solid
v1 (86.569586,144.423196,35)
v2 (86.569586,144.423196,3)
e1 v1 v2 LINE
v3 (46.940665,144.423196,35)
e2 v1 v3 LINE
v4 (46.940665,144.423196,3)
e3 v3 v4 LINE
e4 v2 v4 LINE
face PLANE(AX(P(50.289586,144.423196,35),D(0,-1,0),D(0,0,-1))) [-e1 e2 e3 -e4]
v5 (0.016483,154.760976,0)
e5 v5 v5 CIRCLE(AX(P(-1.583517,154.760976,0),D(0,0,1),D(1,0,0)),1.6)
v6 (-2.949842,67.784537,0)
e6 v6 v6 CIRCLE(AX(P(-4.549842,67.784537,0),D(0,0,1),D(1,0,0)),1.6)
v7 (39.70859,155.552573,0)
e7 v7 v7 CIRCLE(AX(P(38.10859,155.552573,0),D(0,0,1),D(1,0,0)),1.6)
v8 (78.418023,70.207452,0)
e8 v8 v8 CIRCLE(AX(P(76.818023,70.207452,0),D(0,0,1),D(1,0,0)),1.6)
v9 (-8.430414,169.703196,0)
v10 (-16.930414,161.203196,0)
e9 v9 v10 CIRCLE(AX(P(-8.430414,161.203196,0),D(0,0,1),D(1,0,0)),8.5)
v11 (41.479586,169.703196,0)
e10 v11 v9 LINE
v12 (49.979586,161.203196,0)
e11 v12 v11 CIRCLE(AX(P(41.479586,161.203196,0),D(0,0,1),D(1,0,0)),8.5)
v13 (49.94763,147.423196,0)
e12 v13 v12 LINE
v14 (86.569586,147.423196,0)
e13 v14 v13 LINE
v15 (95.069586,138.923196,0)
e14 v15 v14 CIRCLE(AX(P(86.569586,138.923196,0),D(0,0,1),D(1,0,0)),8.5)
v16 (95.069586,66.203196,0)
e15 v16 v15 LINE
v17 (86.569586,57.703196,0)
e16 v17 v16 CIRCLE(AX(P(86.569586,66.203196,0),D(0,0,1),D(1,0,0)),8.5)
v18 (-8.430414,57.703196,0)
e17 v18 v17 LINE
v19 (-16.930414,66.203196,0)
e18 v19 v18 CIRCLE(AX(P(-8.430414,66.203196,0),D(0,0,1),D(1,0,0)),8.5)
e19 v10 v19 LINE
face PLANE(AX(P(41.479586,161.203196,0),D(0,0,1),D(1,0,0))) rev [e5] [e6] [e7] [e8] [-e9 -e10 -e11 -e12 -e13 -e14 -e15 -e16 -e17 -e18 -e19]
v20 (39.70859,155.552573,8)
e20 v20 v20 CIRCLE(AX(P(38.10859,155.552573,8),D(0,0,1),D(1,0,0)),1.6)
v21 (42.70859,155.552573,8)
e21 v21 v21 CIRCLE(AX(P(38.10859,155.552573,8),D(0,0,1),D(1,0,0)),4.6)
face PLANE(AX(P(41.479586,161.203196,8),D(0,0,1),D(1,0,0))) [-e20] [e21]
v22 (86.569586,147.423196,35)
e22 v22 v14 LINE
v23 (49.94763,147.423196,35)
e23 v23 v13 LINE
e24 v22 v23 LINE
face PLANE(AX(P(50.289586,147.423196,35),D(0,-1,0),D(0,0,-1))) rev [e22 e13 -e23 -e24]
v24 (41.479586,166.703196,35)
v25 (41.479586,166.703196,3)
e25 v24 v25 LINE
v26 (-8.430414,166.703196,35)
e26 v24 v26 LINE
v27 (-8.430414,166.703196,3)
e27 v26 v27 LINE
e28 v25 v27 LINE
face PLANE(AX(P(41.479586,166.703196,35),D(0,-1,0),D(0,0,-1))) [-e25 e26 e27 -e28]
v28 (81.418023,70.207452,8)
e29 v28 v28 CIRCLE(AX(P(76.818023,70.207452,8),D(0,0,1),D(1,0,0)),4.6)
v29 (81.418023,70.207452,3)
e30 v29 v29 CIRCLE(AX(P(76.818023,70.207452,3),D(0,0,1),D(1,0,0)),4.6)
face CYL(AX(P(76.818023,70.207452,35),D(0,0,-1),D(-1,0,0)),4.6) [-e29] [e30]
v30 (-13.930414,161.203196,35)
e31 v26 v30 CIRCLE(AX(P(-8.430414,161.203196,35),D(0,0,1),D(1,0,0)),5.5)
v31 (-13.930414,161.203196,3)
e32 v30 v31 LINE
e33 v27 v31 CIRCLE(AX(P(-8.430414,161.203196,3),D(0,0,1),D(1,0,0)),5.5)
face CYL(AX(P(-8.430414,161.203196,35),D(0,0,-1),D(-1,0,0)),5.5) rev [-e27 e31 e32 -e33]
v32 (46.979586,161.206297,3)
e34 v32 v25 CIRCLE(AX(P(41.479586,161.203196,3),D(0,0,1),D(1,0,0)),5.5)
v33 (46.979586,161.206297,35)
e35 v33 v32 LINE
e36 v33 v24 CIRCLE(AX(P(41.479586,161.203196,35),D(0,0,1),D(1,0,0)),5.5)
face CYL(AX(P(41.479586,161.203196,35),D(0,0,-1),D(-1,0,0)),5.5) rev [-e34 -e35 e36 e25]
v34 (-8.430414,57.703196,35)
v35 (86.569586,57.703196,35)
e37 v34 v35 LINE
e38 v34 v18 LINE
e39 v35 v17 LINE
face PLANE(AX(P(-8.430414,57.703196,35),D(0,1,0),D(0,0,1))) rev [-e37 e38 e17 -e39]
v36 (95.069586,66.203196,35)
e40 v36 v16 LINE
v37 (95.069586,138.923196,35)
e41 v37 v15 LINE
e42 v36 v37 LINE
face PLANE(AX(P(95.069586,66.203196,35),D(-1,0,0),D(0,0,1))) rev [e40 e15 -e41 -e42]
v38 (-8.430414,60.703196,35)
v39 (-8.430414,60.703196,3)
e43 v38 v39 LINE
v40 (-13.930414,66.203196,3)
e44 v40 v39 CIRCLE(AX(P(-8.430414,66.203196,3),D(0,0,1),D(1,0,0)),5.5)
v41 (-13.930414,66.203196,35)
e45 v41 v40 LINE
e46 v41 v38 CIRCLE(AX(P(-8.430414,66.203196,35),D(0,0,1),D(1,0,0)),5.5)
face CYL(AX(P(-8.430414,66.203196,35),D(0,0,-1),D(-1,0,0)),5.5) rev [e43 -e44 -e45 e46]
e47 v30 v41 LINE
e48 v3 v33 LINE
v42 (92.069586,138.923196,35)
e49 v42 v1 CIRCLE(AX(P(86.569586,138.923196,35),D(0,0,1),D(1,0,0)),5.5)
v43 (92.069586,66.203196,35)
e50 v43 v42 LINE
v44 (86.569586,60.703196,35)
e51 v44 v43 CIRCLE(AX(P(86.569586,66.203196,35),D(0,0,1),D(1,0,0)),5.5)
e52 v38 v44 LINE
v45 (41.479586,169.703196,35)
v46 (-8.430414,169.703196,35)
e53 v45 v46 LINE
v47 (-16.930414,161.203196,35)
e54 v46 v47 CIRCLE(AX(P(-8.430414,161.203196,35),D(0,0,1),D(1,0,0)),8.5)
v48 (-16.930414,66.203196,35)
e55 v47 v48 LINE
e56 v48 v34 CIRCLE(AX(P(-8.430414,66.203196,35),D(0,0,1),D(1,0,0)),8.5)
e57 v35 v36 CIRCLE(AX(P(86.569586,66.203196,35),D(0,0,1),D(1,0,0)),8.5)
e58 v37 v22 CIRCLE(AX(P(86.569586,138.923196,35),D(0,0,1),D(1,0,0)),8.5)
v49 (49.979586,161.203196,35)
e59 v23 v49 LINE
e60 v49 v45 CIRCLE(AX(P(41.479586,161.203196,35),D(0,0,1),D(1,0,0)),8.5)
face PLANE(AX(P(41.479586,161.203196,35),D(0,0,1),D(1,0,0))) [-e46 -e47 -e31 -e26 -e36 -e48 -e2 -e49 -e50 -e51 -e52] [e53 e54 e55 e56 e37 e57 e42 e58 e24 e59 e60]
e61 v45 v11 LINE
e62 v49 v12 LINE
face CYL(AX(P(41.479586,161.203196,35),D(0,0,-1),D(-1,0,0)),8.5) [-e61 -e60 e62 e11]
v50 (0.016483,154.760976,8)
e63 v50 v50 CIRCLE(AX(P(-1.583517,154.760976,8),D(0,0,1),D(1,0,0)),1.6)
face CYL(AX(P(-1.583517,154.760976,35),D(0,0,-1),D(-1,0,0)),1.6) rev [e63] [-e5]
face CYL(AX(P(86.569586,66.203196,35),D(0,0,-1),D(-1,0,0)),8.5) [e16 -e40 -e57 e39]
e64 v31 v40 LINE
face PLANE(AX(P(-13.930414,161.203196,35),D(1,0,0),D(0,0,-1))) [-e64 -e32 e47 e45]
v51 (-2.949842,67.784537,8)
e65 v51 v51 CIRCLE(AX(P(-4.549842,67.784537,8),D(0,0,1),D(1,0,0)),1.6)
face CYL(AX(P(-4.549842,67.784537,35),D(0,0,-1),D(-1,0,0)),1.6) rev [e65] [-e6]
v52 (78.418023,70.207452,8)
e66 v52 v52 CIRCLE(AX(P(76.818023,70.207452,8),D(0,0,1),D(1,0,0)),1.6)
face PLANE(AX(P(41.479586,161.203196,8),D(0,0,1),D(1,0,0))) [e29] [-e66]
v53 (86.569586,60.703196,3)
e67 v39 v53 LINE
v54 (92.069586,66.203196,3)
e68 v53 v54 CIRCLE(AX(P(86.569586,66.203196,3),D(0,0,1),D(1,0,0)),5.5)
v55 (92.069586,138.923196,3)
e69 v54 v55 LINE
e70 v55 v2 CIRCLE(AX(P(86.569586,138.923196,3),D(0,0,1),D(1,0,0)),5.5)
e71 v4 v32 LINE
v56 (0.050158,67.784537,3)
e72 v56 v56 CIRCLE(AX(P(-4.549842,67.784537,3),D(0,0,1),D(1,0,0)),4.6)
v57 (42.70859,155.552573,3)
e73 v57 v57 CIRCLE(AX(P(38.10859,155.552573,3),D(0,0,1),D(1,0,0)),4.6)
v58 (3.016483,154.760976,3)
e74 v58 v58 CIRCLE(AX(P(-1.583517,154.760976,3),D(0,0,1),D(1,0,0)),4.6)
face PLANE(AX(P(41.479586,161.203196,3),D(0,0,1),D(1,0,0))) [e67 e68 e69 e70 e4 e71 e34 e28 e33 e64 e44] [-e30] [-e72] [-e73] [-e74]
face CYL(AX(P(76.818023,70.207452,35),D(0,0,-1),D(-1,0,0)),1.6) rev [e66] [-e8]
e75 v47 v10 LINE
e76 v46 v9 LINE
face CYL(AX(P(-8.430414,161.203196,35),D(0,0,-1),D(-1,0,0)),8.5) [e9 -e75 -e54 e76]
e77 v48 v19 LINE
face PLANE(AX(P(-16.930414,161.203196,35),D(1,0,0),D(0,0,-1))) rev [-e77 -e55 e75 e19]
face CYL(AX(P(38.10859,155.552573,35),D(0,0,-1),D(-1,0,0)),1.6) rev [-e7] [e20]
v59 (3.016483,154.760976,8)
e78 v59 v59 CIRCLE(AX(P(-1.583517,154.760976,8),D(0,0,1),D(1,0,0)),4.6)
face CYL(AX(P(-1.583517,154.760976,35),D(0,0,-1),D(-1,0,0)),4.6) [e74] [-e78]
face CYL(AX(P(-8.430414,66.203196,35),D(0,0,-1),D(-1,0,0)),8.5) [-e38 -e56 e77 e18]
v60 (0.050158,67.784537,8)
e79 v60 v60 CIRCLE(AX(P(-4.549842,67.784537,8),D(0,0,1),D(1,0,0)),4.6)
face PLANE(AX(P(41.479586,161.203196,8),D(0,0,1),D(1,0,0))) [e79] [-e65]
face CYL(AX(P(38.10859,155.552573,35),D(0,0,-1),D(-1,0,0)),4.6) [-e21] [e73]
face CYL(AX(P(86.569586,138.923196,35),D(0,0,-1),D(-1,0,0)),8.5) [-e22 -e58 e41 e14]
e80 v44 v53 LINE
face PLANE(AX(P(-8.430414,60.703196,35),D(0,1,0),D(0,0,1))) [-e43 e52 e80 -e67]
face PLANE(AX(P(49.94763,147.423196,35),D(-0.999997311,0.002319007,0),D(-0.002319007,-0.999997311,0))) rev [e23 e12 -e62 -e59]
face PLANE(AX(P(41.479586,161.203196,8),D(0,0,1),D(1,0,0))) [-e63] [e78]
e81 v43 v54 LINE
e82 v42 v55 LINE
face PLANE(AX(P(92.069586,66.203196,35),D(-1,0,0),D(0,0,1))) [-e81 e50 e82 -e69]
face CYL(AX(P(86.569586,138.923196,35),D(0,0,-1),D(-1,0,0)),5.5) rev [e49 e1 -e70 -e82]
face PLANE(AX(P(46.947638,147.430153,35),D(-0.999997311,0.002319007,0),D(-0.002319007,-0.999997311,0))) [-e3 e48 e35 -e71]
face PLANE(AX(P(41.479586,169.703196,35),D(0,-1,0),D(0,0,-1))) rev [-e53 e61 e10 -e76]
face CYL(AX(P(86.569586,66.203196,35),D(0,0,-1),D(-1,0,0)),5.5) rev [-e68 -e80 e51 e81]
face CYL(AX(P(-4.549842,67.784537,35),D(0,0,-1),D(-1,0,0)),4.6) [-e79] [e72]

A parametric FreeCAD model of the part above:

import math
import FreeCAD as App
import Part
import Sketcher
from FreeCAD import Vector


def faces_at(feature, points):
    """Names of the faces that lie closest to the given points."""
    faces = feature.Shape.Faces
    near = lambda p: min(range(len(faces)), key=lambda i: faces[i].distToShape(Part.Vertex(*p))[0])
    return sorted({f"Face{near(p) + 1}" for p in points})

doc = App.newDocument("Part")
params = doc.addObject("Spreadsheet::Sheet", "Params")
for row, (alias, value) in enumerate([
    ("sketch1_diameter", "3.2 mm"),
    ("sketch1_radius", "8.5 mm"),
    ("sketch1_width", "95 mm"),
    ("sketch1_width2", "49.91 mm"),
    ("sketch1_height", "72.72 mm"),
    ("pad1_length", "35 mm"),
    ("thickness_wall", "3 mm"),
    ("sketch2_radius", "3.5 mm"),
    ("sketch2_width", "95 mm"),
    ("sketch2_width2", "49.91 mm"),
    ("sketch2_height", "72.72 mm"),
    ("pocket1_length", "27 mm"),
], start=1):
    params.set(f"A{row}", alias)
    params.set(f"B{row}", "=" + value)
    params.setAlias(f"B{row}", alias)

body = doc.addObject("PartDesign::Body", "Body")

# Sketch on XY plane
sketch1 = doc.addObject("Sketcher::SketchObject", "Sketch")
body.addObject(sketch1)
sketch1.AttachmentSupport = (doc.XY_Plane, [""])
sketch1.MapMode = "FlatFace"
sketch1.addGeometry([
    Part.LineSegment(Vector(41.5, 169.7, 0), Vector(-8.4, 169.7, 0)),  # 0
    Part.ArcOfCircle(Part.Circle(Vector(-8.4, 161.2, 0), Vector(0, 0, 1), 8.5), math.radians(90), math.radians(180)),  # 1
    Part.LineSegment(Vector(-16.9, 161.2, 0), Vector(-16.9, 66.2, 0)),  # 2
    Part.ArcOfCircle(Part.Circle(Vector(-8.4, 66.2, 0), Vector(0, 0, 1), 8.5), math.radians(180), math.radians(270)),  # 3
    Part.LineSegment(Vector(-8.4, 57.7, 0), Vector(86.6, 57.7, 0)),  # 4
    Part.ArcOfCircle(Part.Circle(Vector(86.6, 66.2, 0), Vector(0, 0, 1), 8.5), math.radians(-90), math.radians(0)),  # 5
    Part.LineSegment(Vector(95.1, 66.2, 0), Vector(95.1, 138.9, 0)),  # 6
    Part.ArcOfCircle(Part.Circle(Vector(86.6, 138.9, 0), Vector(0, 0, 1), 8.5), math.radians(0), math.radians(90)),  # 7
    Part.LineSegment(Vector(86.6, 147.4, 0), Vector(49.9, 147.4, 0)),  # 8
    Part.LineSegment(Vector(49.9, 147.4, 0), Vector(50, 161.2, 0)),  # 9
    Part.ArcOfCircle(Part.Circle(Vector(41.5, 161.2, 0), Vector(0, 0, 1), 8.5), math.radians(0), math.radians(90)),  # 10
    Part.Circle(Vector(-4.5, 67.8, 0), Vector(0, 0, 1), 1.6),  # 11
    Part.Circle(Vector(76.8, 70.2, 0), Vector(0, 0, 1), 1.6),  # 12
    Part.Circle(Vector(-1.6, 154.8, 0), Vector(0, 0, 1), 1.6),  # 13
    Part.Circle(Vector(38.1, 155.6, 0), Vector(0, 0, 1), 1.6),  # 14
], False)
sketch1.addConstraint([
    Sketcher.Constraint("Tangent", 0, 2, 1, 1),
    Sketcher.Constraint("Tangent", 1, 2, 2, 1),
    Sketcher.Constraint("Tangent", 2, 2, 3, 1),
    Sketcher.Constraint("Tangent", 3, 2, 4, 1),
    Sketcher.Constraint("Tangent", 4, 2, 5, 1),
    Sketcher.Constraint("Tangent", 5, 2, 6, 1),
    Sketcher.Constraint("Tangent", 6, 2, 7, 1),
    Sketcher.Constraint("Tangent", 7, 2, 8, 1),
    Sketcher.Constraint("Coincident", 8, 2, 9, 1),
    Sketcher.Constraint("Coincident", 9, 2, 10, 1),
    Sketcher.Constraint("Tangent", 10, 2, 0, 1),
    Sketcher.Constraint("Horizontal", 0),
    Sketcher.Constraint("Vertical", 2),
    Sketcher.Constraint("Horizontal", 4),
    Sketcher.Constraint("Vertical", 6),
    Sketcher.Constraint("Horizontal", 8),
    Sketcher.Constraint("Equal", 1, 3),
    Sketcher.Constraint("Equal", 3, 5),
    Sketcher.Constraint("Equal", 5, 7),
    Sketcher.Constraint("Equal", 7, 10),
    Sketcher.Constraint("Equal", 11, 12),
    Sketcher.Constraint("Equal", 12, 13),
    Sketcher.Constraint("Equal", 13, 14),
    Sketcher.Constraint("Horizontal", 1, 2, 9, 2),
    Sketcher.Constraint("Equal", 4, 2),
    Sketcher.Constraint("Diameter", 11, 3.2),
    Sketcher.Constraint("Radius", 1, 8.5),
    Sketcher.Constraint("DistanceX", 4, 1, 4, 2, 95.0),
    Sketcher.Constraint("DistanceX", 0, 2, 0, 1, 49.91),
    Sketcher.Constraint("DistanceY", 6, 1, 6, 2, 72.72),
    Sketcher.Constraint("DistanceX", 8, 2, 8, 1, 36.621956),
    Sketcher.Constraint("DistanceY", -1, 1, 12, 3, 70.207452),
    Sketcher.Constraint("DistanceX", -1, 1, 14, 3, 38.10859),
    Sketcher.Constraint("DistanceX", -1, 1, 8, 2, 49.94763),
    Sketcher.Constraint("DistanceX", 3, 3, 11, 3, 3.880572),
    Sketcher.Constraint("DistanceY", 3, 3, 11, 3, 1.581341),
    Sketcher.Constraint("DistanceY", 13, 3, 1, 3, 6.44222),
    Sketcher.Constraint("DistanceY", 12, 3, 14, 3, 85.345122),
    Sketcher.Constraint("DistanceY", -1, 1, 1, 3, 161.203196),
    Sketcher.Constraint("DistanceX", -1, 1, 12, 3, 76.818023),
    Sketcher.Constraint("DistanceX", 13, 3, -1, 1, 1.583517),
])
sketch1.setExpression("Constraints[25]", "Params.sketch1_diameter")
sketch1.setExpression("Constraints[26]", "Params.sketch1_radius")
sketch1.setExpression("Constraints[27]", "Params.sketch1_width")
sketch1.setExpression("Constraints[28]", "Params.sketch1_width2")
sketch1.setExpression("Constraints[29]", "Params.sketch1_height")
pad1 = doc.addObject("PartDesign::Pad", "Pad")
body.addObject(pad1)
pad1.Profile = sketch1
pad1.setExpression("Length", "Params.pad1_length")
doc.recompute()

thickness = doc.addObject("PartDesign::Thickness", "Thickness")
body.addObject(thickness)
thickness.Base = (pad1, faces_at(pad1, [(39.07, 113.703, 35)]))
thickness.setExpression("Value", "Params.thickness_wall")
thickness.Reversed = True
thickness.Join = "Intersection"

# Sketch on XY plane
sketch2 = doc.addObject("Sketcher::SketchObject", "Sketch001")
body.addObject(sketch2)
sketch2.AttachmentSupport = (doc.XY_Plane, [""])
sketch2.MapMode = "FlatFace"
sketch2.AttachmentOffset = App.Placement(Vector(0, 0, 35), App.Rotation())
sketch2.addGeometry([
    Part.LineSegment(Vector(41.5, 164.7, 0), Vector(-8.4, 164.7, 0)),  # 0
    Part.ArcOfCircle(Part.Circle(Vector(-8.4, 161.2, 0), Vector(0, 0, 1), 3.5), math.radians(90), math.radians(180)),  # 1
    Part.LineSegment(Vector(-11.9, 161.2, 0), Vector(-11.9, 66.2, 0)),  # 2
    Part.ArcOfCircle(Part.Circle(Vector(-8.4, 66.2, 0), Vector(0, 0, 1), 3.5), math.radians(-180), math.radians(-90)),  # 3
    Part.LineSegment(Vector(-8.4, 62.7, 0), Vector(86.6, 62.7, 0)),  # 4
    Part.ArcOfCircle(Part.Circle(Vector(86.6, 66.2, 0), Vector(0, 0, 1), 3.5), math.radians(-90), math.radians(0)),  # 5
    Part.LineSegment(Vector(90.1, 66.2, 0), Vector(90.1, 138.9, 0)),  # 6
    Part.ArcOfCircle(Part.Circle(Vector(86.6, 138.9, 0), Vector(0, 0, 1), 3.5), math.radians(0), math.radians(90)),  # 7
    Part.LineSegment(Vector(86.6, 142.4, 0), Vector(44.9, 142.4, 0)),  # 8
    Part.LineSegment(Vector(44.9, 142.4, 0), Vector(45, 161.2, 0)),  # 9
    Part.ArcOfCircle(Part.Circle(Vector(41.5, 161.2, 0), Vector(0, 0, 1), 3.5), math.radians(0), math.radians(90)),  # 10
], False)
sketch2.addConstraint([
    Sketcher.Constraint("Tangent", 0, 2, 1, 1),
    Sketcher.Constraint("Tangent", 1, 2, 2, 1),
    Sketcher.Constraint("Tangent", 2, 2, 3, 1),
    Sketcher.Constraint("Tangent", 3, 2, 4, 1),
    Sketcher.Constraint("Tangent", 4, 2, 5, 1),
    Sketcher.Constraint("Tangent", 5, 2, 6, 1),
    Sketcher.Constraint("Tangent", 6, 2, 7, 1),
    Sketcher.Constraint("Tangent", 7, 2, 8, 1),
    Sketcher.Constraint("Coincident", 8, 2, 9, 1),
    Sketcher.Constraint("Coincident", 9, 2, 10, 1),
    Sketcher.Constraint("Tangent", 10, 2, 0, 1),
    Sketcher.Constraint("Horizontal", 0),
    Sketcher.Constraint("Vertical", 2),
    Sketcher.Constraint("Horizontal", 4),
    Sketcher.Constraint("Vertical", 6),
    Sketcher.Constraint("Horizontal", 8),
    Sketcher.Constraint("Equal", 1, 3),
    Sketcher.Constraint("Equal", 3, 5),
    Sketcher.Constraint("Equal", 5, 7),
    Sketcher.Constraint("Equal", 7, 10),
    Sketcher.Constraint("Equal", 4, 2),
    Sketcher.Constraint("Radius", 1, 3.5),
    Sketcher.Constraint("DistanceX", 4, 1, 4, 2, 95.0),
    Sketcher.Constraint("DistanceX", 0, 2, 0, 1, 49.91),
    Sketcher.Constraint("DistanceY", 6, 1, 6, 2, 72.72),
    Sketcher.Constraint("DistanceX", 8, 2, 8, 1, 41.633565),
    Sketcher.Constraint("DistanceX", -1, 1, 8, 2, 44.936022),
    Sketcher.Constraint("DistanceY", -1, 1, 9, 2, 161.207728),
    Sketcher.Constraint("Distance", 9, 18.784583),
])
sketch2.setExpression("Constraints[21]", "Params.sketch2_radius")
sketch2.setExpression("Constraints[22]", "Params.sketch2_width")
sketch2.setExpression("Constraints[23]", "Params.sketch2_width2")
sketch2.setExpression("Constraints[24]", "Params.sketch2_height")
pocket1 = doc.addObject("PartDesign::Pocket", "Pocket")
body.addObject(pocket1)
pocket1.Profile = sketch2
pocket1.setExpression("Length", "Params.pocket1_length")

doc.recompute()
